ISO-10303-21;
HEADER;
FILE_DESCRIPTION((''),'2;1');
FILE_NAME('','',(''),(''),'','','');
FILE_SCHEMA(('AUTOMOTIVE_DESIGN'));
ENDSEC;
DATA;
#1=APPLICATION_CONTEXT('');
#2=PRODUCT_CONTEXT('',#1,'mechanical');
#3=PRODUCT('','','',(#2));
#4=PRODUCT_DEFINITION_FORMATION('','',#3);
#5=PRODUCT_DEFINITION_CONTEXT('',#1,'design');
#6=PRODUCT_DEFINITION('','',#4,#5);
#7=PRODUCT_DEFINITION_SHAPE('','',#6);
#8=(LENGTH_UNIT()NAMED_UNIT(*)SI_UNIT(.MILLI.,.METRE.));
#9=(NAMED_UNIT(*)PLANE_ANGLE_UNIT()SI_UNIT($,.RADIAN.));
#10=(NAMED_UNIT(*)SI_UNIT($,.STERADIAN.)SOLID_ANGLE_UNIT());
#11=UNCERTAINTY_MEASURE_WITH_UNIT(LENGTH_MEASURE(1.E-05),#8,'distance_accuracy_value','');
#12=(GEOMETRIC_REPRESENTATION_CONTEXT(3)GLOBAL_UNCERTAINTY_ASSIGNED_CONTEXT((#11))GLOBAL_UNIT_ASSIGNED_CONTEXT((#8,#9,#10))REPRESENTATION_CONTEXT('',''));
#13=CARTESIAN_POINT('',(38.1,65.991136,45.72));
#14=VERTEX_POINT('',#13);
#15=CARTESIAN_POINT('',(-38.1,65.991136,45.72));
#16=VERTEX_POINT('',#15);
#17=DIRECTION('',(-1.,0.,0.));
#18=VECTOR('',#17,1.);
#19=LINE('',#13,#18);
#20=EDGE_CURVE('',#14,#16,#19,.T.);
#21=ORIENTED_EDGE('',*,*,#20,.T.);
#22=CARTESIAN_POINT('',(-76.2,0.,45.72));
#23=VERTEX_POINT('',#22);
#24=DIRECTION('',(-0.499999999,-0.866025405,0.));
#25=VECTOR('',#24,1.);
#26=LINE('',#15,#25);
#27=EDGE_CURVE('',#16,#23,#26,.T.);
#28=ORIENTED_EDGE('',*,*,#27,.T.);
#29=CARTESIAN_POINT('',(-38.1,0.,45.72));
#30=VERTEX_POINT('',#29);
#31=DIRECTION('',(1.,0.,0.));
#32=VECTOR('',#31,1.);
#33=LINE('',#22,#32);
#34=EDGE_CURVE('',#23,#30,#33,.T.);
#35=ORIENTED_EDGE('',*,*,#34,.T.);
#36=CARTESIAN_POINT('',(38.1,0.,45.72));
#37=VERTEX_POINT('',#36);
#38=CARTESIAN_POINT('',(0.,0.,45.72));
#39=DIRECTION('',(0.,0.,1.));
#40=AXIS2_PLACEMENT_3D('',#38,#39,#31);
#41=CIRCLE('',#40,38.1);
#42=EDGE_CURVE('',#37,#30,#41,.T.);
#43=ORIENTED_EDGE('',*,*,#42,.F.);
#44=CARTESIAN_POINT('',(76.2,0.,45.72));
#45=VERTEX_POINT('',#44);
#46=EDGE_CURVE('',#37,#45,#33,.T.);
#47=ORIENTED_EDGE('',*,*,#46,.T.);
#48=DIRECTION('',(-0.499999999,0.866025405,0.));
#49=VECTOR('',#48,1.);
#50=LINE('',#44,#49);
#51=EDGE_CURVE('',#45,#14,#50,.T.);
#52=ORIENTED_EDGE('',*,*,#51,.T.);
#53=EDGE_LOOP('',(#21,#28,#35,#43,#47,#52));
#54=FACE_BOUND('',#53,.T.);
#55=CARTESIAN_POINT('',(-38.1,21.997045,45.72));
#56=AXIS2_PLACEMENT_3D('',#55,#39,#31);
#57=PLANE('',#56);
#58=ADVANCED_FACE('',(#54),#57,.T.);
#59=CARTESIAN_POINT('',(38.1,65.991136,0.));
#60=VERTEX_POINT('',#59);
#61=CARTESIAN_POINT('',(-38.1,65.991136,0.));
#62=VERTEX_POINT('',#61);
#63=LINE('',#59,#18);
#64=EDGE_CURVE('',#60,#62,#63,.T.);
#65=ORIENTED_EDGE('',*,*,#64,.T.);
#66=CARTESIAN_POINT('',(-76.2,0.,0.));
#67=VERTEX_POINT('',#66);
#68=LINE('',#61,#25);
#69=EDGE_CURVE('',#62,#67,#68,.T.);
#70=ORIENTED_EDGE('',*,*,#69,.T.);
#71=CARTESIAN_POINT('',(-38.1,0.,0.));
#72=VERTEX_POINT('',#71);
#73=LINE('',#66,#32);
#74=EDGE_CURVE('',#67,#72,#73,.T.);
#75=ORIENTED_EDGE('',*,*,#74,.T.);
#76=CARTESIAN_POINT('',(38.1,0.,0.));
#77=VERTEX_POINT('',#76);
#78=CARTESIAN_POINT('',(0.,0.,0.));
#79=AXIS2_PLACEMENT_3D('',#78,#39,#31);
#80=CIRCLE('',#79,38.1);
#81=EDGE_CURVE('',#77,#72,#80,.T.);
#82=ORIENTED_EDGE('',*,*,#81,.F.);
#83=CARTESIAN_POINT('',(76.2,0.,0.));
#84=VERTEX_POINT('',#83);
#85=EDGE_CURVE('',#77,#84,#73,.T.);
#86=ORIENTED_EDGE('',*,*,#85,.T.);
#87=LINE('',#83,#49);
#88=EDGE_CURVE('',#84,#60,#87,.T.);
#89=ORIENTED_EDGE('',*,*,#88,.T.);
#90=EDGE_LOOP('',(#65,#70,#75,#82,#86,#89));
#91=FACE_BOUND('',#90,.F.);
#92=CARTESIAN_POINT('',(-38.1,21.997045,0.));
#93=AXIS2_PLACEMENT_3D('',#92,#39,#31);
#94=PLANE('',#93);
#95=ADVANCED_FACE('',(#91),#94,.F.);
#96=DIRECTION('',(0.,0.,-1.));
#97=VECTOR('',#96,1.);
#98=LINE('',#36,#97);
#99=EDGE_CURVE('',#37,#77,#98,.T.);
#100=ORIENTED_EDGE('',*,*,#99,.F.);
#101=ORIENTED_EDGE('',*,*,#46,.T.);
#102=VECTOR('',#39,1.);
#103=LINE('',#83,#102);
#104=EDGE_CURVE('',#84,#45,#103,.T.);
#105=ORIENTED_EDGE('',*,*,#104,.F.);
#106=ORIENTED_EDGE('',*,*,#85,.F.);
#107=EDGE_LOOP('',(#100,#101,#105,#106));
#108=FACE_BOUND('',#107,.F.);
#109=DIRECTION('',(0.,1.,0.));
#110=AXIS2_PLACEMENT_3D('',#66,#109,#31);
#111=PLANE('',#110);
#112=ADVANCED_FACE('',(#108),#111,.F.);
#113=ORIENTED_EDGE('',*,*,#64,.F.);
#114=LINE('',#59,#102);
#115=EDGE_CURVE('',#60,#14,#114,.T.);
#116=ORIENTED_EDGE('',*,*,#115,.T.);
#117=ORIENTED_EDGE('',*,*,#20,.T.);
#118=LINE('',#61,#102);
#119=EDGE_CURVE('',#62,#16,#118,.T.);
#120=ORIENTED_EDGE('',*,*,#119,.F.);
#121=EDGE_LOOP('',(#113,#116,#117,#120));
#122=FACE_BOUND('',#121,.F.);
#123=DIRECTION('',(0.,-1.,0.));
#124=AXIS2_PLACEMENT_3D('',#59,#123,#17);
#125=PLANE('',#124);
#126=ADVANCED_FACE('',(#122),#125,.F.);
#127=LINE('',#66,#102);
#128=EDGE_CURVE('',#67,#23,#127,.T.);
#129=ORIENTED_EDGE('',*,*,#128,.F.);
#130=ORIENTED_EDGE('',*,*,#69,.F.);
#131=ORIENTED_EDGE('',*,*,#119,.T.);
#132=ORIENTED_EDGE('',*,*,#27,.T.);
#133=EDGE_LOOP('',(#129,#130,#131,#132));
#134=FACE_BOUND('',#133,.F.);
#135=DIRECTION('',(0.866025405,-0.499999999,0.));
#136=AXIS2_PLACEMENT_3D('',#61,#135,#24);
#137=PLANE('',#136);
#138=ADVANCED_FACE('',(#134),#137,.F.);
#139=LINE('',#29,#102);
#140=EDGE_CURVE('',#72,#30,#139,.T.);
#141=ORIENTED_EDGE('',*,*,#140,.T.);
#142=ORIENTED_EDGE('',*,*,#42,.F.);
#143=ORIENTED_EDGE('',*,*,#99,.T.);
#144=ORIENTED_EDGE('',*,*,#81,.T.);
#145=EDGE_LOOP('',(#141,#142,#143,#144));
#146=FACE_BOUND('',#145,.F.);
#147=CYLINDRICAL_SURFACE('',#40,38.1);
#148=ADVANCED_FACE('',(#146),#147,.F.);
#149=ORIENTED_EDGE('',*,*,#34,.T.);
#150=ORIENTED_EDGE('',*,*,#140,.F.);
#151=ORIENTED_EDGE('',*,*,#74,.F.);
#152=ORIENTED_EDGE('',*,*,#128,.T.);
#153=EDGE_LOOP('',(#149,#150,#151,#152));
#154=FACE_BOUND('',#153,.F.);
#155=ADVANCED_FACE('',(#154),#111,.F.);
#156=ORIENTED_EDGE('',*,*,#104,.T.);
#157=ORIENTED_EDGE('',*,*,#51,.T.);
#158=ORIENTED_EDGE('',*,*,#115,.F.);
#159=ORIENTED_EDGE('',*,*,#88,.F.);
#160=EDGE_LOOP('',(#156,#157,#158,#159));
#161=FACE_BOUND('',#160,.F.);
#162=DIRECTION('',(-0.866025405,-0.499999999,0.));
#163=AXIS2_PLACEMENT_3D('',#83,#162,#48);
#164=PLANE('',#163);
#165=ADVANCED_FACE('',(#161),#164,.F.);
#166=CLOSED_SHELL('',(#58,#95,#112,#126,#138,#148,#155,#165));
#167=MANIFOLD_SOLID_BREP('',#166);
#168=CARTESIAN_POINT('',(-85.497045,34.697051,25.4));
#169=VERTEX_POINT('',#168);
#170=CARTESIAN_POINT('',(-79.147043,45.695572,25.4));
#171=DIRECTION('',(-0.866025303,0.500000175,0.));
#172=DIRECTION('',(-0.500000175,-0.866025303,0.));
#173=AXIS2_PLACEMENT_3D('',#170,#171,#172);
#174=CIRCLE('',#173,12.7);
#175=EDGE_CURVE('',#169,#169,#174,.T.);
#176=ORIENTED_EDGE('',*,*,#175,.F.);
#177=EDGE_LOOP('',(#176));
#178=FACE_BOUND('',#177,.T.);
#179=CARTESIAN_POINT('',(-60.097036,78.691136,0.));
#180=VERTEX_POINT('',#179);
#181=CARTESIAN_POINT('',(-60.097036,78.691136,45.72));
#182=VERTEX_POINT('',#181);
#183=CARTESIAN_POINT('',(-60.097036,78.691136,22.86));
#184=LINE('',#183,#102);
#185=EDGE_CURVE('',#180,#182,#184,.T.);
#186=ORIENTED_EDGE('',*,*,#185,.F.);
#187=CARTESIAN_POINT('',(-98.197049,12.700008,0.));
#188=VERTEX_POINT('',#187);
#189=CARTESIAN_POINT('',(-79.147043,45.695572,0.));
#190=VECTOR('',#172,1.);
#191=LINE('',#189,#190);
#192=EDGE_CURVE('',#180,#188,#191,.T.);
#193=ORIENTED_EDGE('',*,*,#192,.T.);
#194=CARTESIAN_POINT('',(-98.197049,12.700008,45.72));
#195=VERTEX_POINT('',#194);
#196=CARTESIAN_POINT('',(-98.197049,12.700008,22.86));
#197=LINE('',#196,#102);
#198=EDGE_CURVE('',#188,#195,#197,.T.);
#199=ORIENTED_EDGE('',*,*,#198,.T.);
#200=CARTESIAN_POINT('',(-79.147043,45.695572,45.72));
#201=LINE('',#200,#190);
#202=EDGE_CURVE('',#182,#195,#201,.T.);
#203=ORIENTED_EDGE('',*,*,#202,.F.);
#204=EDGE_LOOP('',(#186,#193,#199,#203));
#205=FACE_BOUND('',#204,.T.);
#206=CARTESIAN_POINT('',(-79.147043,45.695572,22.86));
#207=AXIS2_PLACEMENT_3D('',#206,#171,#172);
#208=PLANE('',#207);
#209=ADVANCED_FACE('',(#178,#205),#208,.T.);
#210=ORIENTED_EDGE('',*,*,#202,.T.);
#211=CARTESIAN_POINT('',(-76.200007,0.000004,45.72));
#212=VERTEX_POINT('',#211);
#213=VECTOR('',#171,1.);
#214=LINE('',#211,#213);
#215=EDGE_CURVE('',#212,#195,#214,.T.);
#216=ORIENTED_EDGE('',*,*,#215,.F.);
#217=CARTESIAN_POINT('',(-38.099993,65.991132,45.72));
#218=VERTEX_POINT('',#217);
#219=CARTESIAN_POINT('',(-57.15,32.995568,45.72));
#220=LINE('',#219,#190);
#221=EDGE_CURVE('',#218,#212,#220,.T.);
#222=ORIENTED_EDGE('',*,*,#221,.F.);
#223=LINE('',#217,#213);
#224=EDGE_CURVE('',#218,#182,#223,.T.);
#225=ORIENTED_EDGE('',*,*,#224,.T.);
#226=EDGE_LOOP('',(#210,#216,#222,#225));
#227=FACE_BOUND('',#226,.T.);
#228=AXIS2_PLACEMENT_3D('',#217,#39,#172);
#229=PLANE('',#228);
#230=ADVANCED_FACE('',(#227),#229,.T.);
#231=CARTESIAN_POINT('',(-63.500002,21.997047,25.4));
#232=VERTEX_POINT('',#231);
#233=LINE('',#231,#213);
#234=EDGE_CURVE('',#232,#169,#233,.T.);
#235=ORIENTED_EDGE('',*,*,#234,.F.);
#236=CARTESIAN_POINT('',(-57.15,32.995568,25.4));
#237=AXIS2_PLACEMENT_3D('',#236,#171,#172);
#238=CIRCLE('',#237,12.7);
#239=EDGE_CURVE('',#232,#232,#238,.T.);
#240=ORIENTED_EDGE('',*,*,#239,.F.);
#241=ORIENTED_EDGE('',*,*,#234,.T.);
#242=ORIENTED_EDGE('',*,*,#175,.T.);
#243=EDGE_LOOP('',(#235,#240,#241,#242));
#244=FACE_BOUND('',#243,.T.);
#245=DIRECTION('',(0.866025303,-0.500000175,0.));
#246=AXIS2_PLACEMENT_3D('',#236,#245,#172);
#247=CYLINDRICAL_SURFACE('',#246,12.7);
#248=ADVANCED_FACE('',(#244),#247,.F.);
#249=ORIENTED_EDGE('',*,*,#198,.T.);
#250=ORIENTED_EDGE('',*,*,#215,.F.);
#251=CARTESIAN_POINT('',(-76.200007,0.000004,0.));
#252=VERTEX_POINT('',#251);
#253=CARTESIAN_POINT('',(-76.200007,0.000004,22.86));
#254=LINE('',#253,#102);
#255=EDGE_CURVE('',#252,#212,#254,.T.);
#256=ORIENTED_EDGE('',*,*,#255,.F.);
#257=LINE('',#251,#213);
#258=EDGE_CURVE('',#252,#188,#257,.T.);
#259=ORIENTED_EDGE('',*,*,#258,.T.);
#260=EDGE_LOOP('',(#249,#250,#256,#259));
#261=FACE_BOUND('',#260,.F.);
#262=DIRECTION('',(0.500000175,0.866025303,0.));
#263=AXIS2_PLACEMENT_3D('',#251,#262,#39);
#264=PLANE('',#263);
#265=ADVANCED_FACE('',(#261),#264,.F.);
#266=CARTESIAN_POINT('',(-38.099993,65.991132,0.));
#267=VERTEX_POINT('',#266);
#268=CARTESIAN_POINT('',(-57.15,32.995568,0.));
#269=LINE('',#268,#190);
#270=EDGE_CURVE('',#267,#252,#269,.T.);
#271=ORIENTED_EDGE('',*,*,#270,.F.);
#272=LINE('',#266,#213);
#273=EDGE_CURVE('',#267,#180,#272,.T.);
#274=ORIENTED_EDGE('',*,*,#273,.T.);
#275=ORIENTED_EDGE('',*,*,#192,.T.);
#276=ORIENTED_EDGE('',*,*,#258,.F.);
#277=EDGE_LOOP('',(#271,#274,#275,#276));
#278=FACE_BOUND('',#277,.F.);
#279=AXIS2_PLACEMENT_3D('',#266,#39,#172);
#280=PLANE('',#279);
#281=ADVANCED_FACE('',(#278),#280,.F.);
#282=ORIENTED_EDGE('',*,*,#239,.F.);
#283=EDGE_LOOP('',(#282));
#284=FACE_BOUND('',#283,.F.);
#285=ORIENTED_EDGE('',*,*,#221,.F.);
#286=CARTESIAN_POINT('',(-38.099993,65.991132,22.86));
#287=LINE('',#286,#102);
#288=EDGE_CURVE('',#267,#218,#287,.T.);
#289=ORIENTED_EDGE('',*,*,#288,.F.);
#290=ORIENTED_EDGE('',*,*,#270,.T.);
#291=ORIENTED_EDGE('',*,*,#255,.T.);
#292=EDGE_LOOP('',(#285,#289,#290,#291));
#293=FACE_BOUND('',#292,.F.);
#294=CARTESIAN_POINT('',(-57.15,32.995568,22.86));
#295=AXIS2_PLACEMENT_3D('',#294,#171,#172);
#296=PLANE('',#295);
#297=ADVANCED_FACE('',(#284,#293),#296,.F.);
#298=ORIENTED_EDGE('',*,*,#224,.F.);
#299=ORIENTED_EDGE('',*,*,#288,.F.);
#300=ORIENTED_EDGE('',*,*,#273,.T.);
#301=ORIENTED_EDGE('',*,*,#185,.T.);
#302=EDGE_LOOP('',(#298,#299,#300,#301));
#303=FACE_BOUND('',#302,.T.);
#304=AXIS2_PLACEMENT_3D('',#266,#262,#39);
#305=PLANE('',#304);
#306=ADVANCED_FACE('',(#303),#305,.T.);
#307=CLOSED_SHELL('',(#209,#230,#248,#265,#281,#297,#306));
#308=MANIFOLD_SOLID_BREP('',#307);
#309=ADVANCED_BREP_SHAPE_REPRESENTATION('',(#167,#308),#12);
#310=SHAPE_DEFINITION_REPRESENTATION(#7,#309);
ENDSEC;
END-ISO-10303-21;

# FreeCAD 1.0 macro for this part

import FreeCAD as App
import Part
import Sketcher
Q = App.Units.Quantity

doc = App.newDocument("Part")
body = doc.addObject("PartDesign::Body", "Body")

sketch1 = body.newObject("Sketcher::SketchObject", "Sketch")
sketch1.AttachmentSupport = (doc.getObject("XY_Plane"), [""])
sketch1.MapMode = "FlatFace"
sketch1.addGeometry([
    Part.LineSegment(App.Vector(-76, 0, 0), App.Vector(76, 0, 0)),
    Part.LineSegment(App.Vector(76, 0, 0), App.Vector(38, 66, 0)),
    Part.LineSegment(App.Vector(38, 66, 0), App.Vector(-38, 66, 0)),
    Part.LineSegment(App.Vector(-38, 66, 0), App.Vector(-76, 0, 0)),
], False)
sketch1.addConstraint([
    Sketcher.Constraint("Coincident", 0, 2, 1, 1),
    Sketcher.Constraint("Coincident", 1, 2, 2, 1),
    Sketcher.Constraint("Coincident", 2, 2, 3, 1),
    Sketcher.Constraint("Coincident", 3, 2, 0, 1),
    Sketcher.Constraint("Horizontal", 0),
    Sketcher.Constraint("Horizontal", 2),
    Sketcher.Constraint("Symmetric", 0, 2, 3, 2, -1, 1),
    Sketcher.Constraint("Equal", 1, 3),
    Sketcher.Constraint("DistanceX", 0, 1, 0, 2, Q("6 in")),
    Sketcher.Constraint("DistanceX", 2, 2, 2, 1, Q("3 in")),
    Sketcher.Constraint("Distance", 1, Q("3 in")),
])
pad1 = body.newObject("PartDesign::Pad", "Pad")
pad1.Profile = sketch1
pad1.Length = Q("1.8 in")

sketch2 = body.newObject("Sketcher::SketchObject", "Sketch001")
sketch2.AttachmentSupport = (doc.getObject("XY_Plane"), [""])
sketch2.MapMode = "FlatFace"
sketch2.AttachmentOffset = App.Placement(App.Vector(0, 0, 1.8 * 25.4), App.Rotation())
sketch2.addGeometry(Part.Circle(App.Vector(0, 0, 0), App.Vector(0, 0, 1), 38), False)
sketch2.addConstraint([
    Sketcher.Constraint("Coincident", 0, 3, -1, 1),
    Sketcher.Constraint("Diameter", 0, Q("3 in")),
])
pocket1 = body.newObject("PartDesign::Pocket", "Pocket")
pocket1.Profile = sketch2
pocket1.Type = "ThroughAll"
body2 = doc.addObject("PartDesign::Body", "Body001")

sketch3 = body2.newObject("Sketcher::SketchObject", "Sketch002")
sketch3.Placement = App.Placement(App.Vector(-57.15, 32.995568, 0), App.Rotation(App.Vector(-0.500000175, -0.866025303, 0), App.Vector(0, 0, 1), App.Vector(-0.866025303, 0.500000175, 0), "ZXY"))
sketch3.addGeometry([
    Part.LineSegment(App.Vector(-38, 46, 0), App.Vector(-38, 0, 0)),
    Part.LineSegment(App.Vector(-38, 0, 0), App.Vector(38, 0, 0)),
    Part.LineSegment(App.Vector(38, 0, 0), App.Vector(38, 46, 0)),
    Part.LineSegment(App.Vector(38, 46, 0), App.Vector(-38, 46, 0)),
    Part.Circle(App.Vector(0, 25, 0), App.Vector(0, 0, 1), 13),
], False)
sketch3.addConstraint([
    Sketcher.Constraint("Coincident", 0, 2, 1, 1),
    Sketcher.Constraint("Coincident", 1, 2, 2, 1),
    Sketcher.Constraint("Coincident", 2, 2, 3, 1),
    Sketcher.Constraint("Coincident", 3, 2, 0, 1),
    Sketcher.Constraint("Vertical", 0),
    Sketcher.Constraint("Horizontal", 1),
    Sketcher.Constraint("Vertical", 2),
    Sketcher.Constraint("Horizontal", 3),
    Sketcher.Constraint("Symmetric", 0, 2, 1, 2, -1, 1),
    Sketcher.Constraint("PointOnObject", 4, 3, -2),
    Sketcher.Constraint("Diameter", 4, Q("1 in")),
    Sketcher.Constraint("DistanceX", 1, 1, 1, 2, Q("3 in")),
    Sketcher.Constraint("DistanceY", 0, 2, 0, 1, Q("1.8 in")),
    Sketcher.Constraint("DistanceY", -1, 1, 4, 3, Q("1 in")),
])
pad2 = body2.newObject("PartDesign::Pad", "Pad001")
pad2.Profile = sketch3
pad2.Length = Q("1 in")

doc.recompute()
